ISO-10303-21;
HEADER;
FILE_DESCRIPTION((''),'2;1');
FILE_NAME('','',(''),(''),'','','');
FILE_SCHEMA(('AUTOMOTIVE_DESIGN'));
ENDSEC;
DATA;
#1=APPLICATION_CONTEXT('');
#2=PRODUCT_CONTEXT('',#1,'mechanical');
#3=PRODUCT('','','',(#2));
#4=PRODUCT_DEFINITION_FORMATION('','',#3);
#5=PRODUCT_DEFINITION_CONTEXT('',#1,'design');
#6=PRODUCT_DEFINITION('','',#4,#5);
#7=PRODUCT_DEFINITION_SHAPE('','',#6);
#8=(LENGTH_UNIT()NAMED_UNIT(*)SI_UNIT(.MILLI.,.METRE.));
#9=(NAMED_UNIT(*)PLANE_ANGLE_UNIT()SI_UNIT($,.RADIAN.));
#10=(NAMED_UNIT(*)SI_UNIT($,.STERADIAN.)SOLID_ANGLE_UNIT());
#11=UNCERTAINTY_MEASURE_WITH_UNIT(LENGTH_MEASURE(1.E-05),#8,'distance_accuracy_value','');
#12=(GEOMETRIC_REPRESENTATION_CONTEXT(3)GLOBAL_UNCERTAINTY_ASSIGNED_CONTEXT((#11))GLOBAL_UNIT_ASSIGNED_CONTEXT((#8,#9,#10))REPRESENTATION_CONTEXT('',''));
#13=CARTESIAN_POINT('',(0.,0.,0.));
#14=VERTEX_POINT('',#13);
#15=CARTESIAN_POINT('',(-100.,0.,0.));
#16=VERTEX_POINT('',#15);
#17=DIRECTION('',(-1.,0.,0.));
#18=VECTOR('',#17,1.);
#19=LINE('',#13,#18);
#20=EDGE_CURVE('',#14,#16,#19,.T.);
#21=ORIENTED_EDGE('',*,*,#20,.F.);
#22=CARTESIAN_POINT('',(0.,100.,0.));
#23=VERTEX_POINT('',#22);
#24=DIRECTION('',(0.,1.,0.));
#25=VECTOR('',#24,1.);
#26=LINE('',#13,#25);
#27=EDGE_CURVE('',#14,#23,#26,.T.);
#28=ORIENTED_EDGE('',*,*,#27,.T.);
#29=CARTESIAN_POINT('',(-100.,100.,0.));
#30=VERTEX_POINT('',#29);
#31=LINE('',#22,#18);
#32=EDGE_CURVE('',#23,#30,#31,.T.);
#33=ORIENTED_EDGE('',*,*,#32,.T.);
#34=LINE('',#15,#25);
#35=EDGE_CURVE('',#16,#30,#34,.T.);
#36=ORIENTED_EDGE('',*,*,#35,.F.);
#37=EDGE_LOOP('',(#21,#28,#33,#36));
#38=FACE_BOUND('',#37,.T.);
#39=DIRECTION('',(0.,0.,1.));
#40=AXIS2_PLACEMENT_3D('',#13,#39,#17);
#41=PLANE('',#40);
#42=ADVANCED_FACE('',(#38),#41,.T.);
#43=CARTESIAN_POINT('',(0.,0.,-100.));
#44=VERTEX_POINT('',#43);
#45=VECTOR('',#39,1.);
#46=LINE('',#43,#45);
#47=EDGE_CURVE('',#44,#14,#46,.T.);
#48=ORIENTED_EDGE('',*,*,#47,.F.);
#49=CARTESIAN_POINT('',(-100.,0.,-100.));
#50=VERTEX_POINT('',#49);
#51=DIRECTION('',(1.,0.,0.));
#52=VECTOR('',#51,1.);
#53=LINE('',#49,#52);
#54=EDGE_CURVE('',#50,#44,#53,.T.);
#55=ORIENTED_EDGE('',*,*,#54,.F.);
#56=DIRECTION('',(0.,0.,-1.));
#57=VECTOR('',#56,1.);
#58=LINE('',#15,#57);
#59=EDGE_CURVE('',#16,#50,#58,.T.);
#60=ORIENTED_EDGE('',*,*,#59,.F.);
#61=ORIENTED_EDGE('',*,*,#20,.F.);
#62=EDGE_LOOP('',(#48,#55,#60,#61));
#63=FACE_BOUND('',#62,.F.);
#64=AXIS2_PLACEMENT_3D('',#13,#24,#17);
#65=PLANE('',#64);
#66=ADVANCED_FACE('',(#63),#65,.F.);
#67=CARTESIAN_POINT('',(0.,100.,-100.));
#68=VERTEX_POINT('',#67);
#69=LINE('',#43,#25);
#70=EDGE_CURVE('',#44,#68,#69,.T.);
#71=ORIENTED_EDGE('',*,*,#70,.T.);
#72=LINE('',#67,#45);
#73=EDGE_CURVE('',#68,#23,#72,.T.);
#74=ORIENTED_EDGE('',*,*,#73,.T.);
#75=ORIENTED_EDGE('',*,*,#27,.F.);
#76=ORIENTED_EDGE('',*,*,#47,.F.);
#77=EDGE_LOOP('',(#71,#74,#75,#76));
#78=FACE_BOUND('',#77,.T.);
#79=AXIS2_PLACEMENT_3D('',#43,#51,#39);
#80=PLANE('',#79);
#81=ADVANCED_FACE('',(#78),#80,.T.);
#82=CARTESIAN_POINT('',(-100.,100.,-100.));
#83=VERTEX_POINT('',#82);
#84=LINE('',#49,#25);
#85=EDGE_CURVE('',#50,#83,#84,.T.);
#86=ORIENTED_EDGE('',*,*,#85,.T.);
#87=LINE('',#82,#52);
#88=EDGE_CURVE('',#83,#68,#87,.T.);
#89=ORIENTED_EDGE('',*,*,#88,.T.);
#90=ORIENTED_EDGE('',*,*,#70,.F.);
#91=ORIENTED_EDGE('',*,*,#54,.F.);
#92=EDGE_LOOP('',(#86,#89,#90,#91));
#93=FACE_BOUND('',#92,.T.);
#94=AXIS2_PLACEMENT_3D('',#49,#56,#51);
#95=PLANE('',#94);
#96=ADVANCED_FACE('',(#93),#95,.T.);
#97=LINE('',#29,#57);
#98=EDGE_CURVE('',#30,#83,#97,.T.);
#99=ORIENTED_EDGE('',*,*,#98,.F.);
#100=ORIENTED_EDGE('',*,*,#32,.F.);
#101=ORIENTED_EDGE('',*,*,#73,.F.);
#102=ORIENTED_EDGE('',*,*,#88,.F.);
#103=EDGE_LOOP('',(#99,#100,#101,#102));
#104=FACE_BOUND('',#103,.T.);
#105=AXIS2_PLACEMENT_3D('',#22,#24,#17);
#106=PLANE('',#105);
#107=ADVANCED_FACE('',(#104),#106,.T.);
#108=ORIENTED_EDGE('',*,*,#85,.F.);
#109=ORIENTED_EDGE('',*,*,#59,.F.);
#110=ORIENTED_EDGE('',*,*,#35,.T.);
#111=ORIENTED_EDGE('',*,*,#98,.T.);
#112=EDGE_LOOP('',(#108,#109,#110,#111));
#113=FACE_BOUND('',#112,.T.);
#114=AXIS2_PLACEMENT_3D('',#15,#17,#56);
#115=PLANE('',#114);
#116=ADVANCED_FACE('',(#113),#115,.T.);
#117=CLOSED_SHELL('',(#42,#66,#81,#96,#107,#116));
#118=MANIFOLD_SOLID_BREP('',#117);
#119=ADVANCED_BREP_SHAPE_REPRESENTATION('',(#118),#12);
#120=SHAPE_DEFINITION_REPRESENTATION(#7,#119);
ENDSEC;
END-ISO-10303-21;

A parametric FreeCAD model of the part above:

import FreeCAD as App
import Part
import Sketcher
from FreeCAD import Vector
Q = App.Units.Quantity


def add_polygon(sketch, points):
    """Adds a closed chain of lines whose ends are joined by coincident constraints."""
    first, n = sketch.GeometryCount, len(points)
    for a, b in zip(points, points[1:] + points[:1]):
        sketch.addGeometry(Part.LineSegment(App.Vector(*a, 0), App.Vector(*b, 0)), False)
    for i in range(n):
        sketch.addConstraint(Sketcher.Constraint("Coincident", first + i, 2, first + (i + 1) % n, 1))

doc = App.newDocument("Part")
body = doc.addObject("PartDesign::Body", "Body")

sketch1 = doc.addObject("Sketcher::SketchObject", "Sketch")
body.addObject(sketch1)
sketch1.AttachmentSupport = (doc.XZ_Plane, [""])
sketch1.MapMode = "FlatFace"
add_polygon(sketch1, [(-100, 0), (0, 0), (0, -100), (-100, -100)])
sketch1.addConstraint(Sketcher.Constraint("Horizontal", 0))
sketch1.addConstraint(Sketcher.Constraint("Vertical", 1))
sketch1.addConstraint(Sketcher.Constraint("Horizontal", 2))
sketch1.addConstraint(Sketcher.Constraint("Vertical", 3))
sketch1.addConstraint(Sketcher.Constraint("Coincident", 0, 2, -1, 1))
sketch1.addConstraint(Sketcher.Constraint("Equal", 2, 1))
sketch1.addConstraint(Sketcher.Constraint("DistanceX", 0, 1, 0, 2, Q("3.937 in")))
pad1 = doc.addObject("PartDesign::Pad", "Pad")
body.addObject(pad1)
pad1.Profile = sketch1
pad1.Length = Q("3.9370079 in")
pad1.Reversed = True

doc.recompute()
